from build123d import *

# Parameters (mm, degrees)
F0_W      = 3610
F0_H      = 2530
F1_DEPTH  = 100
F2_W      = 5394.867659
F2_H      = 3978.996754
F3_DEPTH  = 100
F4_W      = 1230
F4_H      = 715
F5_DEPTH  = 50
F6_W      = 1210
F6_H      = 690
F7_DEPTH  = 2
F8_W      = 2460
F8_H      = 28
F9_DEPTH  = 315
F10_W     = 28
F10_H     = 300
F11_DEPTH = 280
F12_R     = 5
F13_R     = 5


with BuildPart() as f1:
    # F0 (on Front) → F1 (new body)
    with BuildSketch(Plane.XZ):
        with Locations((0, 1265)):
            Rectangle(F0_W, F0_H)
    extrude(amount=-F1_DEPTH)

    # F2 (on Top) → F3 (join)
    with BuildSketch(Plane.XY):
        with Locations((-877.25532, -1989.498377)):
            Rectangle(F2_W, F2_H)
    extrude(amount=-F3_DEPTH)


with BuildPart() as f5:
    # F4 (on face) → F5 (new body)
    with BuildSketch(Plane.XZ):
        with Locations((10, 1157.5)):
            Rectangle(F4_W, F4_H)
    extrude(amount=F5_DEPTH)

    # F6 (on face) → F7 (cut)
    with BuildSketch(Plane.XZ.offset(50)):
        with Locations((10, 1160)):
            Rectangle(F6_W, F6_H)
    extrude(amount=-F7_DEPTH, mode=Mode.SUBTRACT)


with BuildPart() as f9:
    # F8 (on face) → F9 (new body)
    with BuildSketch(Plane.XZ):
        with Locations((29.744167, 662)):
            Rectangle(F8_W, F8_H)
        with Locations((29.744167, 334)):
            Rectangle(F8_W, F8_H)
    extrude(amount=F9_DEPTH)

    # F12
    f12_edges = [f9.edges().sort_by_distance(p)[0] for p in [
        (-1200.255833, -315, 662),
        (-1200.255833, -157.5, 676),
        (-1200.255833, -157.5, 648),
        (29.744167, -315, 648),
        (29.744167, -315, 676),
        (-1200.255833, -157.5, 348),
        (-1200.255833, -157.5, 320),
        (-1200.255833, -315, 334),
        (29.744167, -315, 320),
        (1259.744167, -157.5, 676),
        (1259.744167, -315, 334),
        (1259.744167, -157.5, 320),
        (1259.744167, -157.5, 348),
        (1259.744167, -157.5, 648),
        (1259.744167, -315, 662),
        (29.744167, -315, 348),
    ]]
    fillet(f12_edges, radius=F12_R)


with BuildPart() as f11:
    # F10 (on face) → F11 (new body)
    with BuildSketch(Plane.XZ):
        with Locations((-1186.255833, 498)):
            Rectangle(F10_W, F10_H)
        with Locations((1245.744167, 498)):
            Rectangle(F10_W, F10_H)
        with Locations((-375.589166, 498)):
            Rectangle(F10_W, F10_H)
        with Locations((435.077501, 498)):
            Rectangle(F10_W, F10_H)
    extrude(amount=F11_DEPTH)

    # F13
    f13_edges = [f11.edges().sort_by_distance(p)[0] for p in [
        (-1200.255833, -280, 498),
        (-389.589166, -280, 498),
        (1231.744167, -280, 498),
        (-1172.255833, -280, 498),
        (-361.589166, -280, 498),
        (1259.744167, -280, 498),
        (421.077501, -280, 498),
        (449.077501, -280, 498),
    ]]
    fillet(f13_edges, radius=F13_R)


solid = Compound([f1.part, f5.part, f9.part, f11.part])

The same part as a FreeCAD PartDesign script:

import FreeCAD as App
import Part
import Sketcher
Q = App.Units.Quantity


def edges_at(feature, points):
    """Names of the edges that pass closest to the given points."""
    edges = feature.Shape.Edges
    near = lambda p: min(range(len(edges)), key=lambda i: edges[i].distToShape(Part.Vertex(*p))[0])
    return sorted({f"Edge{near(p) + 1}" for p in points})


def add_polygon(sketch, points):
    """Adds a closed chain of lines whose ends are joined by coincident constraints."""
    first, n = sketch.GeometryCount, len(points)
    for a, b in zip(points, points[1:] + points[:1]):
        sketch.addGeometry(Part.LineSegment(App.Vector(*a, 0), App.Vector(*b, 0)), False)
    for i in range(n):
        sketch.addConstraint(Sketcher.Constraint("Coincident", first + i, 2, first + (i + 1) % n, 1))

doc = App.newDocument("Part")
params = doc.addObject("Spreadsheet::Sheet", "Params")
for row, (alias, value) in enumerate([
    ("sketch1_width", "3610 mm"),
    ("sketch1_height", "2530 mm"),
    ("pad1_length", "100 mm"),
    ("pad2_length", "100 mm"),
    ("sketch3_width", "1230 mm"),
    ("sketch3_height", "715 mm"),
    ("pad3_length", "50 mm"),
    ("sketch4_width", "1210 mm"),
    ("sketch4_height", "690 mm"),
    ("pocket1_length", "2 mm"),
    ("sketch5_width", "2460 mm"),
    ("sketch5_height", "28 mm"),
    ("pad4_length", "315 mm"),
    ("fillet_radius", "5 mm"),
    ("sketch6_width", "28 mm"),
    ("sketch6_height", "300 mm"),
    ("pad5_length", "280 mm"),
    ("fillet2_radius", "5 mm"),
], start=1):
    params.set(f"A{row}", alias)
    params.set(f"B{row}", "=" + value)
    params.setAlias(f"B{row}", alias)

body = doc.addObject("PartDesign::Body", "Body")
body.AllowCompound = True

# Sketch on XZ plane
sketch1 = body.newObject("Sketcher::SketchObject", "Sketch")
sketch1.AttachmentSupport = (doc.getObject("XZ_Plane"), [""])
sketch1.MapMode = "FlatFace"
add_polygon(sketch1, [(-1805, 2530), (-1805, 0), (1805, 0), (1805, 2530)])  # lines 0-3
sketch1.addConstraint([
    Sketcher.Constraint("Vertical", 0),
    Sketcher.Constraint("Horizontal", 1),
    Sketcher.Constraint("Vertical", 2),
    Sketcher.Constraint("Horizontal", 3),
    Sketcher.Constraint("Symmetric", 0, 2, 1, 2, -1, 1),
    Sketcher.Constraint("DistanceX", 1, 1, 1, 2, Q("3610 mm")),
    Sketcher.Constraint("DistanceY", 0, 2, 0, 1, Q("2530 mm")),
])
sketch1.setExpression("Constraints[9]", "Params.sketch1_width")
sketch1.setExpression("Constraints[10]", "Params.sketch1_height")
pad1 = body.newObject("PartDesign::Pad", "Pad")
pad1.Profile = sketch1
pad1.setExpression("Length", "Params.pad1_length")
pad1.Reversed = True

# Sketch on XY plane
sketch2 = body.newObject("Sketcher::SketchObject", "Sketch001")
sketch2.AttachmentSupport = (doc.getObject("XY_Plane"), [""])
sketch2.MapMode = "FlatFace"
add_polygon(sketch2, [(-3575, 0), (-3575, -3979), (1820, -3979), (1820, 0)])  # lines 0-3
sketch2.addConstraint([
    Sketcher.Constraint("Vertical", 0),
    Sketcher.Constraint("Horizontal", 1),
    Sketcher.Constraint("Vertical", 2),
    Sketcher.Constraint("Horizontal", 3),
    Sketcher.Constraint("PointOnObject", 2, 2, -1),
    Sketcher.Constraint("DistanceX", 1, 1, 1, 2, Q("5394.867659 mm")),
    Sketcher.Constraint("DistanceY", 0, 2, 0, 1, Q("3978.996754 mm")),
    Sketcher.Constraint("DistanceX", 0, 2, -1, 1, Q("3574.689149 mm")),
])
pad2 = body.newObject("PartDesign::Pad", "Pad001")
pad2.Profile = sketch2
pad2.setExpression("Length", "Params.pad2_length")
pad2.Reversed = True
body2 = doc.addObject("PartDesign::Body", "Body001")

# Sketch on XZ plane
sketch3 = body2.newObject("Sketcher::SketchObject", "Sketch002")
sketch3.AttachmentSupport = (doc.getObject("XZ_Plane001"), [""])
sketch3.MapMode = "FlatFace"
add_polygon(sketch3, [(-605, 1515), (-605, 800), (625, 800), (625, 1515)])  # lines 0-3
sketch3.addConstraint([
    Sketcher.Constraint("Vertical", 0),
    Sketcher.Constraint("Horizontal", 1),
    Sketcher.Constraint("Vertical", 2),
    Sketcher.Constraint("Horizontal", 3),
    Sketcher.Constraint("DistanceX", 1, 1, 1, 2, Q("1230 mm")),
    Sketcher.Constraint("DistanceY", 0, 2, 0, 1, Q("715 mm")),
    Sketcher.Constraint("DistanceX", 0, 2, -1, 1, Q("605 mm")),
    Sketcher.Constraint("DistanceY", -1, 1, 0, 2, Q("800 mm")),
])
sketch3.setExpression("Constraints[8]", "Params.sketch3_width")
sketch3.setExpression("Constraints[9]", "Params.sketch3_height")
pad3 = body2.newObject("PartDesign::Pad", "Pad002")
pad3.Profile = sketch3
pad3.setExpression("Length", "Params.pad3_length")

# Sketch on XZ plane
sketch4 = body2.newObject("Sketcher::SketchObject", "Sketch003")
sketch4.AttachmentSupport = (doc.getObject("XZ_Plane001"), [""])
sketch4.MapMode = "FlatFace"
sketch4.AttachmentOffset = App.Placement(App.Vector(0, 0, 50), App.Rotation())
add_polygon(sketch4, [(-595, 1505), (-595, 815), (615, 815), (615, 1505)])  # lines 0-3
sketch4.addConstraint([
    Sketcher.Constraint("Vertical", 0),
    Sketcher.Constraint("Horizontal", 1),
    Sketcher.Constraint("Vertical", 2),
    Sketcher.Constraint("Horizontal", 3),
    Sketcher.Constraint("DistanceX", 1, 1, 1, 2, Q("1210 mm")),
    Sketcher.Constraint("DistanceY", 0, 2, 0, 1, Q("690 mm")),
    Sketcher.Constraint("DistanceX", 0, 2, -1, 1, Q("595 mm")),
    Sketcher.Constraint("DistanceY", -1, 1, 0, 2, Q("815 mm")),
])
sketch4.setExpression("Constraints[8]", "Params.sketch4_width")
sketch4.setExpression("Constraints[9]", "Params.sketch4_height")
pocket1 = body2.newObject("PartDesign::Pocket", "Pocket")
pocket1.Profile = sketch4
pocket1.setExpression("Length", "Params.pocket1_length")
body3 = doc.addObject("PartDesign::Body", "Body002")
body3.AllowCompound = True

# Sketch on XZ plane
sketch5 = body3.newObject("Sketcher::SketchObject", "Sketch004")
sketch5.AttachmentSupport = (doc.getObject("XZ_Plane002"), [""])
sketch5.MapMode = "FlatFace"
add_polygon(sketch5, [(-1200, 676), (-1200, 648), (1260, 648), (1260, 676)])  # lines 0-3
add_polygon(sketch5, [(-1200, 348), (-1200, 320), (1260, 320), (1260, 348)])  # lines 4-7
sketch5.addConstraint([
    Sketcher.Constraint("Vertical", 0),
    Sketcher.Constraint("Horizontal", 1),
    Sketcher.Constraint("Vertical", 2),
    Sketcher.Constraint("Horizontal", 3),
    Sketcher.Constraint("Vertical", 4),
    Sketcher.Constraint("Horizontal", 5),
    Sketcher.Constraint("Vertical", 6),
    Sketcher.Constraint("Horizontal", 7),
    Sketcher.Constraint("Vertical", 3, 2, 4, 2),
    Sketcher.Constraint("Vertical", 2, 2, 5, 2),
    Sketcher.Constraint("Equal", 2, 4),
    Sketcher.Constraint("DistanceX", 1, 1, 1, 2, Q("2460 mm")),
    Sketcher.Constraint("DistanceY", 0, 2, 0, 1, Q("28 mm")),
    Sketcher.Constraint("DistanceY", -1, 1, 0, 2, Q("648 mm")),
    Sketcher.Constraint("DistanceY", -1, 1, 4, 2, Q("320 mm")),
    Sketcher.Constraint("DistanceX", 0, 2, -1, 1, Q("1200.255833 mm")),
])
sketch5.setExpression("Constraints[19]", "Params.sketch5_width")
sketch5.setExpression("Constraints[20]", "Params.sketch5_height")
pad4 = body3.newObject("PartDesign::Pad", "Pad003")
pad4.Profile = sketch5
pad4.setExpression("Length", "Params.pad4_length")
doc.recompute()

fillet = body3.newObject("PartDesign::Fillet", "Fillet")
fillet.Base = (pad4, edges_at(pad4, [
    (-1200.256, -315, 662),
    (-1200.256, -157.5, 676),
    (-1200.256, -157.5, 648),
    (29.744, -315, 648),
    (29.744, -315, 676),
    (-1200.256, -157.5, 348),
    (-1200.256, -157.5, 320),
    (-1200.256, -315, 334),
    (29.744, -315, 320),
    (1259.744, -157.5, 676),
    (1259.744, -315, 334),
    (1259.744, -157.5, 320),
    (1259.744, -157.5, 348),
    (1259.744, -157.5, 648),
    (1259.744, -315, 662),
    (29.744, -315, 348),
]))
fillet.setExpression("Radius", "Params.fillet_radius")
body4 = doc.addObject("PartDesign::Body", "Body003")
body4.AllowCompound = True

# Sketch on XZ plane
sketch6 = body4.newObject("Sketcher::SketchObject", "Sketch005")
sketch6.AttachmentSupport = (doc.getObject("XZ_Plane003"), [""])
sketch6.MapMode = "FlatFace"
add_polygon(sketch6, [(-1200, 648), (-1200, 348), (-1172, 348), (-1172, 648)])  # lines 0-3
add_polygon(sketch6, [(1232, 648), (1232, 348), (1260, 348), (1260, 648)])  # lines 4-7
add_polygon(sketch6, [(-390, 648), (-390, 348), (-362, 348), (-362, 648)])  # lines 8-11
add_polygon(sketch6, [(421, 648), (421, 348), (449, 348), (449, 648)])  # lines 12-15
sketch6.addConstraint([
    Sketcher.Constraint("Vertical", 0),
    Sketcher.Constraint("Horizontal", 1),
    Sketcher.Constraint("Vertical", 2),
    Sketcher.Constraint("Horizontal", 3),
    Sketcher.Constraint("Vertical", 4),
    Sketcher.Constraint("Horizontal", 5),
    Sketcher.Constraint("Vertical", 6),
    Sketcher.Constraint("Horizontal", 7),
    Sketcher.Constraint("Vertical", 8),
    Sketcher.Constraint("Horizontal", 9),
    Sketcher.Constraint("Vertical", 10),
    Sketcher.Constraint("Horizontal", 11),
    Sketcher.Constraint("Vertical", 12),
    Sketcher.Constraint("Horizontal", 13),
    Sketcher.Constraint("Vertical", 14),
    Sketcher.Constraint("Horizontal", 15),
    Sketcher.Constraint("Horizontal", 1, 2, 4, 2),
    Sketcher.Constraint("Horizontal", 3, 2, 6, 2),
    Sketcher.Constraint("Horizontal", 5, 2, 8, 2),
    Sketcher.Constraint("Horizontal", 7, 2, 10, 2),
    Sketcher.Constraint("Horizontal", 9, 2, 12, 2),
    Sketcher.Constraint("Horizontal", 11, 2, 14, 2),
    Sketcher.Constraint("Equal", 3, 5),
    Sketcher.Constraint("Equal", 7, 9),
    Sketcher.Constraint("Equal", 11, 13),
    Sketcher.Constraint("DistanceX", 1, 1, 1, 2, Q("28 mm")),
    Sketcher.Constraint("DistanceY", 0, 2, 0, 1, Q("300 mm")),
    Sketcher.Constraint("DistanceY", -1, 1, 0, 2, Q("348 mm")),
    Sketcher.Constraint("DistanceX", 1, 2, 4, 2, Q("2404 mm")),
    Sketcher.Constraint("DistanceX", -1, 1, 12, 2, Q("421.077501 mm")),
    Sketcher.Constraint("DistanceX", 0, 2, -1, 1, Q("1200.255833 mm")),
    Sketcher.Constraint("DistanceX", 8, 2, -1, 1, Q("389.589166 mm")),
])
sketch6.setExpression("Constraints[41]", "Params.sketch6_width")
sketch6.setExpression("Constraints[42]", "Params.sketch6_height")
pad5 = body4.newObject("PartDesign::Pad", "Pad004")
pad5.Profile = sketch6
pad5.setExpression("Length", "Params.pad5_length")
doc.recompute()

fillet2 = body4.newObject("PartDesign::Fillet", "Fillet001")
fillet2.Base = (pad5, edges_at(pad5, [
    (-1200.256, -280, 498),
    (-389.589, -280, 498),
    (1231.744, -280, 498),
    (-1172.256, -280, 498),
    (-361.589, -280, 498),
    (1259.744, -280, 498),
    (421.078, -280, 498),
    (449.078, -280, 498),
]))
fillet2.setExpression("Radius", "Params.fillet2_radius")

doc.recompute()
